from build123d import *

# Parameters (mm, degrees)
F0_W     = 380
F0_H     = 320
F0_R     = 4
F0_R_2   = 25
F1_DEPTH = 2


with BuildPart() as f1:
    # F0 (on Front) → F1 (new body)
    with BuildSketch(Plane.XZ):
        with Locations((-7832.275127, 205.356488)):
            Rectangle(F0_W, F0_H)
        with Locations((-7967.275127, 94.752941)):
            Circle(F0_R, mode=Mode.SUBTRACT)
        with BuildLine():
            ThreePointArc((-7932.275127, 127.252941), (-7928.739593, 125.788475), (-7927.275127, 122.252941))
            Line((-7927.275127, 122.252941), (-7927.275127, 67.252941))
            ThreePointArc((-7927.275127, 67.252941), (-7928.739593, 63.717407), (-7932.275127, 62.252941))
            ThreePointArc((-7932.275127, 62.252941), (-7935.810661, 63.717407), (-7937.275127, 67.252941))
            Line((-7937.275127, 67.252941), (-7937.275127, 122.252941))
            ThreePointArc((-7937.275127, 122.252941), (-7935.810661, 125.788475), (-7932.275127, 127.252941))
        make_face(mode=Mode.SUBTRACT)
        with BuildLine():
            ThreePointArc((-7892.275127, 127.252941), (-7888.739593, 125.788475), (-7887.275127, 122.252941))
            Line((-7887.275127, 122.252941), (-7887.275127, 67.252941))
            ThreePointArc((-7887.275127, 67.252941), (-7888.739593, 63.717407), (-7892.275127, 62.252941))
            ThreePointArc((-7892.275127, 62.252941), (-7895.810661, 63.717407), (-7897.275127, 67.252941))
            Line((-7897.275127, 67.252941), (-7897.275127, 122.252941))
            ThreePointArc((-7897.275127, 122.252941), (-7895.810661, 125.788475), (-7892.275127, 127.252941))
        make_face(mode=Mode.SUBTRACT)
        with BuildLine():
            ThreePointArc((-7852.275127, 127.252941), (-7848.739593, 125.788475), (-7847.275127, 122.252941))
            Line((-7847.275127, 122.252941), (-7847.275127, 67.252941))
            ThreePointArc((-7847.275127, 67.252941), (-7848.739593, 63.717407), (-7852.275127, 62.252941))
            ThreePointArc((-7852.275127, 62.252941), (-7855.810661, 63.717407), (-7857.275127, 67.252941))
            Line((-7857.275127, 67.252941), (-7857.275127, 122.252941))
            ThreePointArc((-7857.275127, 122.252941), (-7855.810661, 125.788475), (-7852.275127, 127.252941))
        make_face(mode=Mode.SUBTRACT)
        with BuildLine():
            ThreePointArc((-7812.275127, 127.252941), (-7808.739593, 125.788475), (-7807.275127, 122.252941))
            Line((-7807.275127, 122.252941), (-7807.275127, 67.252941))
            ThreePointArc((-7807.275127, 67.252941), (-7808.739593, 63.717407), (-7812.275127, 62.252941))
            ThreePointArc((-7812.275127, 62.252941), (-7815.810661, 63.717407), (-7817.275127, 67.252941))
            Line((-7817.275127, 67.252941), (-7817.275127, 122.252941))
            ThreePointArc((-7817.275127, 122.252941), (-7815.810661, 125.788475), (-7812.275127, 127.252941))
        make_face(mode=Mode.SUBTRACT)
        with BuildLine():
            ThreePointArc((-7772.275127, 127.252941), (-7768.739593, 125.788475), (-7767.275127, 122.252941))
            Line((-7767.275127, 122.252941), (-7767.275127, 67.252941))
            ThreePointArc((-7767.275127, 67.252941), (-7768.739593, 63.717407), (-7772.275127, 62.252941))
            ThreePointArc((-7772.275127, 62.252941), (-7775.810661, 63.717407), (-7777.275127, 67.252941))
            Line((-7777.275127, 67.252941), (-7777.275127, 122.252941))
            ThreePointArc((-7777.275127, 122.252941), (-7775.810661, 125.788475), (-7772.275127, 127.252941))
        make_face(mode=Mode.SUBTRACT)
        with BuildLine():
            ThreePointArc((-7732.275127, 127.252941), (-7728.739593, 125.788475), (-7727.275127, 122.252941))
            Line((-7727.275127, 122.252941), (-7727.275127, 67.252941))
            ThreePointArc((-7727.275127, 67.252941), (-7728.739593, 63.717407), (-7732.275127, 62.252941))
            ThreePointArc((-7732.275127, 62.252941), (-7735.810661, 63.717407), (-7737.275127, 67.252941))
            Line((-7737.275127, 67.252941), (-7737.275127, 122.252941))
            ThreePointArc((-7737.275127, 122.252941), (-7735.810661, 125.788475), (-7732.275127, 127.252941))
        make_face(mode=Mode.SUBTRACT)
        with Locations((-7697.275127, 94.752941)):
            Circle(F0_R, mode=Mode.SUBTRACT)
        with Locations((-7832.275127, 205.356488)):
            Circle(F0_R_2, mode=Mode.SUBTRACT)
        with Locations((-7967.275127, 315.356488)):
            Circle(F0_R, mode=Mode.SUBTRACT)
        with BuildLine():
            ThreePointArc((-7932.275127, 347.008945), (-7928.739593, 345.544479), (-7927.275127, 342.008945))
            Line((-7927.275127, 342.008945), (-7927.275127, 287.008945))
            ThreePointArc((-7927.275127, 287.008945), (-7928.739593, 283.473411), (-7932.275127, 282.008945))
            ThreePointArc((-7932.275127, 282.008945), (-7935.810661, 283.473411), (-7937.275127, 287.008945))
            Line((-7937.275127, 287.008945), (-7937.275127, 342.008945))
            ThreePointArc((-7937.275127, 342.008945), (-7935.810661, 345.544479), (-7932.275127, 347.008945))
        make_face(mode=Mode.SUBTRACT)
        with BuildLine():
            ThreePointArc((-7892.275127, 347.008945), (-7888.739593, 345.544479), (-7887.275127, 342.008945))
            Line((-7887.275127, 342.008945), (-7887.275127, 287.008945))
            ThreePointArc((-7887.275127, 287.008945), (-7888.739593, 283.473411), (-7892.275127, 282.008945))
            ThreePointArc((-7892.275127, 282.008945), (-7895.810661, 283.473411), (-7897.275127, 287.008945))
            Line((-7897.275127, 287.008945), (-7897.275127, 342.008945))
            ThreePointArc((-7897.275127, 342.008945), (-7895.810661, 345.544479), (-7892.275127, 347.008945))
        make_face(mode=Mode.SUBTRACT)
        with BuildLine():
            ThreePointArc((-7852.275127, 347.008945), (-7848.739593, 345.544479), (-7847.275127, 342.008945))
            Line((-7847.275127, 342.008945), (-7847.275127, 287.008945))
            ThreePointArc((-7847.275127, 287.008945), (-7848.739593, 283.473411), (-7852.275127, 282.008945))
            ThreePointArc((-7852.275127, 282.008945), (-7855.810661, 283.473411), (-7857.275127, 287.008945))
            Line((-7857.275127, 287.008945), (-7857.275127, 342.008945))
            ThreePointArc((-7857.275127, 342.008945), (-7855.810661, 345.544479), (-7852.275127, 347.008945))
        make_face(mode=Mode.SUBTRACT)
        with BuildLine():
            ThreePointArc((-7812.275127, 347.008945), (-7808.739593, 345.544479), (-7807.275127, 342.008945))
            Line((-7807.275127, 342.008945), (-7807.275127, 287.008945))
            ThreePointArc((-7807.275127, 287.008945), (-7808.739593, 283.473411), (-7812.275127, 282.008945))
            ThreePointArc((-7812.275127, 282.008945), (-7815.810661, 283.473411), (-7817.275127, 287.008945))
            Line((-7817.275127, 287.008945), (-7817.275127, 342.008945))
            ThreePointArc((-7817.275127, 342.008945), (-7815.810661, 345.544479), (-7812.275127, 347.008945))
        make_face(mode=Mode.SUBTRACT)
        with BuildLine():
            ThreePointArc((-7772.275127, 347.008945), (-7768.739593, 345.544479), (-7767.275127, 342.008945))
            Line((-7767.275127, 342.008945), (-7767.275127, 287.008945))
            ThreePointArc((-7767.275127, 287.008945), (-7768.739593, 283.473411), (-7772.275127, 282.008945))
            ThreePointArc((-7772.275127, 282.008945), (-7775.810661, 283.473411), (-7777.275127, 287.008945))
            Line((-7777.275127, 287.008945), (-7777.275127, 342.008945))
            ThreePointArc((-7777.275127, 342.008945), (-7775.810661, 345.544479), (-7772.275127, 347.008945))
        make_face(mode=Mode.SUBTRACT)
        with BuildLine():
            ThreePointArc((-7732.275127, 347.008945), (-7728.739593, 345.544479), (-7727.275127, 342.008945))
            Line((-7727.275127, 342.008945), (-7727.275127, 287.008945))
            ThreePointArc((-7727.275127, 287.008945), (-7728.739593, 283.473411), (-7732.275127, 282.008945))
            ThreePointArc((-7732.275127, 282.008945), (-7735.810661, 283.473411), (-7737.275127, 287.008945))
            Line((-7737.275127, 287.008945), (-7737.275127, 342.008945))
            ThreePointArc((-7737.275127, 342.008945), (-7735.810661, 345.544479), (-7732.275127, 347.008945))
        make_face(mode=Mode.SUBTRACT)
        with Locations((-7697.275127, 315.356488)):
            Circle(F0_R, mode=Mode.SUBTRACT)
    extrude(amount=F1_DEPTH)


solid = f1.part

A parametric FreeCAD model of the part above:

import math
import FreeCAD as App
import Part
import Sketcher
from FreeCAD import Vector

doc = App.newDocument("Part")
params = doc.addObject("Spreadsheet::Sheet", "Params")
for row, (alias, value) in enumerate([
    ("sketch1_diameter", "8 mm"),
    ("sketch1_diameter2", "50 mm"),
    ("sketch1_radius", "5 mm"),
    ("sketch1_width", "380 mm"),
    ("sketch1_height", "320 mm"),
    ("pad1_length", "2 mm"),
], start=1):
    params.set(f"A{row}", alias)
    params.set(f"B{row}", "=" + value)
    params.setAlias(f"B{row}", alias)

body = doc.addObject("PartDesign::Body", "Body")

sketch1 = body.newObject("Sketcher::SketchObject", "Sketch")
sketch1.AttachmentSupport = (doc.getObject("XZ_Plane"), [""])
sketch1.MapMode = "FlatFace"
sketch1.addGeometry(Part.LineSegment(Vector(-8022.3, 365.4, 0), Vector(-8022.3, 45.4, 0)), False)
sketch1.addGeometry(Part.LineSegment(Vector(-8022.3, 45.4, 0), Vector(-7642.3, 45.4, 0)), False)
sketch1.addGeometry(Part.LineSegment(Vector(-7642.3, 45.4, 0), Vector(-7642.3, 365.4, 0)), False)
sketch1.addGeometry(Part.LineSegment(Vector(-7642.3, 365.4, 0), Vector(-8022.3, 365.4, 0)), False)
sketch1.addGeometry(Part.Circle(Vector(-7967.3, 94.8, 0), Vector(0, 0, 1), 4), False)
sketch1.addGeometry(Part.ArcOfCircle(Part.Circle(Vector(-7932.3, 122.3, 0), Vector(0, 0, 1), 5), math.radians(90), math.radians(180)), False)
sketch1.addGeometry(Part.ArcOfCircle(Part.Circle(Vector(-7932.3, 122.3, 0), Vector(0, 0, 1), 5), math.radians(0), math.radians(90)), False)
sketch1.addGeometry(Part.LineSegment(Vector(-7927.3, 122.3, 0), Vector(-7927.3, 67.3, 0)), False)
sketch1.addGeometry(Part.ArcOfCircle(Part.Circle(Vector(-7932.3, 67.3, 0), Vector(0, 0, 1), 5), math.radians(-90), math.radians(0)), False)
sketch1.addGeometry(Part.ArcOfCircle(Part.Circle(Vector(-7932.3, 67.3, 0), Vector(0, 0, 1), 5), math.radians(180), math.radians(270)), False)
sketch1.addGeometry(Part.LineSegment(Vector(-7937.3, 67.3, 0), Vector(-7937.3, 122.3, 0)), False)
sketch1.addGeometry(Part.ArcOfCircle(Part.Circle(Vector(-7892.3, 122.3, 0), Vector(0, 0, 1), 5), math.radians(90), math.radians(180)), False)
sketch1.addGeometry(Part.ArcOfCircle(Part.Circle(Vector(-7892.3, 122.3, 0), Vector(0, 0, 1), 5), math.radians(0), math.radians(90)), False)
sketch1.addGeometry(Part.LineSegment(Vector(-7887.3, 122.3, 0), Vector(-7887.3, 67.3, 0)), False)
sketch1.addGeometry(Part.ArcOfCircle(Part.Circle(Vector(-7892.3, 67.3, 0), Vector(0, 0, 1), 5), math.radians(-90), math.radians(0)), False)
sketch1.addGeometry(Part.ArcOfCircle(Part.Circle(Vector(-7892.3, 67.3, 0), Vector(0, 0, 1), 5), math.radians(180), math.radians(270)), False)
sketch1.addGeometry(Part.LineSegment(Vector(-7897.3, 67.3, 0), Vector(-7897.3, 122.3, 0)), False)
sketch1.addGeometry(Part.ArcOfCircle(Part.Circle(Vector(-7852.3, 122.3, 0), Vector(0, 0, 1), 5), math.radians(90), math.radians(180)), False)
sketch1.addGeometry(Part.ArcOfCircle(Part.Circle(Vector(-7852.3, 122.3, 0), Vector(0, 0, 1), 5), math.radians(0), math.radians(90)), False)
sketch1.addGeometry(Part.LineSegment(Vector(-7847.3, 122.3, 0), Vector(-7847.3, 67.3, 0)), False)
sketch1.addGeometry(Part.ArcOfCircle(Part.Circle(Vector(-7852.3, 67.3, 0), Vector(0, 0, 1), 5), math.radians(-90), math.radians(0)), False)
sketch1.addGeometry(Part.ArcOfCircle(Part.Circle(Vector(-7852.3, 67.3, 0), Vector(0, 0, 1), 5), math.radians(180), math.radians(270)), False)
sketch1.addGeometry(Part.LineSegment(Vector(-7857.3, 67.3, 0), Vector(-7857.3, 122.3, 0)), False)
sketch1.addGeometry(Part.ArcOfCircle(Part.Circle(Vector(-7812.3, 122.3, 0), Vector(0, 0, 1), 5), math.radians(90), math.radians(180)), False)
sketch1.addGeometry(Part.ArcOfCircle(Part.Circle(Vector(-7812.3, 122.3, 0), Vector(0, 0, 1), 5), math.radians(0), math.radians(90)), False)
sketch1.addGeometry(Part.LineSegment(Vector(-7807.3, 122.3, 0), Vector(-7807.3, 67.3, 0)), False)
sketch1.addGeometry(Part.ArcOfCircle(Part.Circle(Vector(-7812.3, 67.3, 0), Vector(0, 0, 1), 5), math.radians(-90), math.radians(0)), False)
sketch1.addGeometry(Part.ArcOfCircle(Part.Circle(Vector(-7812.3, 67.3, 0), Vector(0, 0, 1), 5), math.radians(180), math.radians(270)), False)
sketch1.addGeometry(Part.LineSegment(Vector(-7817.3, 67.3, 0), Vector(-7817.3, 122.3, 0)), False)
sketch1.addGeometry(Part.ArcOfCircle(Part.Circle(Vector(-7772.3, 122.3, 0), Vector(0, 0, 1), 5), math.radians(90), math.radians(180)), False)
sketch1.addGeometry(Part.ArcOfCircle(Part.Circle(Vector(-7772.3, 122.3, 0), Vector(0, 0, 1), 5), math.radians(0), math.radians(90)), False)
sketch1.addGeometry(Part.LineSegment(Vector(-7767.3, 122.3, 0), Vector(-7767.3, 67.3, 0)), False)
sketch1.addGeometry(Part.ArcOfCircle(Part.Circle(Vector(-7772.3, 67.3, 0), Vector(0, 0, 1), 5), math.radians(-90), math.radians(0)), False)
sketch1.addGeometry(Part.ArcOfCircle(Part.Circle(Vector(-7772.3, 67.3, 0), Vector(0, 0, 1), 5), math.radians(180), math.radians(270)), False)
sketch1.addGeometry(Part.LineSegment(Vector(-7777.3, 67.3, 0), Vector(-7777.3, 122.3, 0)), False)
sketch1.addGeometry(Part.ArcOfCircle(Part.Circle(Vector(-7732.3, 122.3, 0), Vector(0, 0, 1), 5), math.radians(90), math.radians(180)), False)
sketch1.addGeometry(Part.ArcOfCircle(Part.Circle(Vector(-7732.3, 122.3, 0), Vector(0, 0, 1), 5), math.radians(0), math.radians(90)), False)
sketch1.addGeometry(Part.LineSegment(Vector(-7727.3, 122.3, 0), Vector(-7727.3, 67.3, 0)), False)
sketch1.addGeometry(Part.ArcOfCircle(Part.Circle(Vector(-7732.3, 67.3, 0), Vector(0, 0, 1), 5), math.radians(-90), math.radians(0)), False)
sketch1.addGeometry(Part.ArcOfCircle(Part.Circle(Vector(-7732.3, 67.3, 0), Vector(0, 0, 1), 5), math.radians(180), math.radians(270)), False)
sketch1.addGeometry(Part.LineSegment(Vector(-7737.3, 67.3, 0), Vector(-7737.3, 122.3, 0)), False)
sketch1.addGeometry(Part.Circle(Vector(-7697.3, 94.8, 0), Vector(0, 0, 1), 4), False)
sketch1.addGeometry(Part.Circle(Vector(-7967.3, 315.4, 0), Vector(0, 0, 1), 4), False)
sketch1.addGeometry(Part.ArcOfCircle(Part.Circle(Vector(-7932.3, 342, 0), Vector(0, 0, 1), 5), math.radians(90), math.radians(180)), False)
sketch1.addGeometry(Part.ArcOfCircle(Part.Circle(Vector(-7932.3, 342, 0), Vector(0, 0, 1), 5), math.radians(0), math.radians(90)), False)
sketch1.addGeometry(Part.LineSegment(Vector(-7927.3, 342, 0), Vector(-7927.3, 287, 0)), False)
sketch1.addGeometry(Part.ArcOfCircle(Part.Circle(Vector(-7932.3, 287, 0), Vector(0, 0, 1), 5), math.radians(-90), math.radians(0)), False)
sketch1.addGeometry(Part.ArcOfCircle(Part.Circle(Vector(-7932.3, 287, 0), Vector(0, 0, 1), 5), math.radians(180), math.radians(270)), False)
sketch1.addGeometry(Part.LineSegment(Vector(-7937.3, 287, 0), Vector(-7937.3, 342, 0)), False)
sketch1.addGeometry(Part.ArcOfCircle(Part.Circle(Vector(-7892.3, 342, 0), Vector(0, 0, 1), 5), math.radians(90), math.radians(180)), False)
sketch1.addGeometry(Part.ArcOfCircle(Part.Circle(Vector(-7892.3, 342, 0), Vector(0, 0, 1), 5), math.radians(0), math.radians(90)), False)
sketch1.addGeometry(Part.LineSegment(Vector(-7887.3, 342, 0), Vector(-7887.3, 287, 0)), False)
sketch1.addGeometry(Part.ArcOfCircle(Part.Circle(Vector(-7892.3, 287, 0), Vector(0, 0, 1), 5), math.radians(-90), math.radians(0)), False)
sketch1.addGeometry(Part.ArcOfCircle(Part.Circle(Vector(-7892.3, 287, 0), Vector(0, 0, 1), 5), math.radians(180), math.radians(270)), False)
sketch1.addGeometry(Part.LineSegment(Vector(-7897.3, 287, 0), Vector(-7897.3, 342, 0)), False)
sketch1.addGeometry(Part.ArcOfCircle(Part.Circle(Vector(-7852.3, 342, 0), Vector(0, 0, 1), 5), math.radians(90), math.radians(180)), False)
sketch1.addGeometry(Part.ArcOfCircle(Part.Circle(Vector(-7852.3, 342, 0), Vector(0, 0, 1), 5), math.radians(0), math.radians(90)), False)
sketch1.addGeometry(Part.LineSegment(Vector(-7847.3, 342, 0), Vector(-7847.3, 287, 0)), False)
sketch1.addGeometry(Part.ArcOfCircle(Part.Circle(Vector(-7852.3, 287, 0), Vector(0, 0, 1), 5), math.radians(-90), math.radians(0)), False)
sketch1.addGeometry(Part.ArcOfCircle(Part.Circle(Vector(-7852.3, 287, 0), Vector(0, 0, 1), 5), math.radians(180), math.radians(270)), False)
sketch1.addGeometry(Part.LineSegment(Vector(-7857.3, 287, 0), Vector(-7857.3, 342, 0)), False)
sketch1.addGeometry(Part.Circle(Vector(-7832.3, 205.4, 0), Vector(0, 0, 1), 25), False)
sketch1.addGeometry(Part.ArcOfCircle(Part.Circle(Vector(-7812.3, 342, 0), Vector(0, 0, 1), 5), math.radians(90), math.radians(180)), False)
sketch1.addGeometry(Part.ArcOfCircle(Part.Circle(Vector(-7812.3, 342, 0), Vector(0, 0, 1), 5), math.radians(0), math.radians(90)), False)
sketch1.addGeometry(Part.LineSegment(Vector(-7807.3, 342, 0), Vector(-7807.3, 287, 0)), False)
sketch1.addGeometry(Part.ArcOfCircle(Part.Circle(Vector(-7812.3, 287, 0), Vector(0, 0, 1), 5), math.radians(-90), math.radians(0)), False)
sketch1.addGeometry(Part.ArcOfCircle(Part.Circle(Vector(-7812.3, 287, 0), Vector(0, 0, 1), 5), math.radians(180), math.radians(270)), False)
sketch1.addGeometry(Part.LineSegment(Vector(-7817.3, 287, 0), Vector(-7817.3, 342, 0)), False)
sketch1.addGeometry(Part.ArcOfCircle(Part.Circle(Vector(-7772.3, 342, 0), Vector(0, 0, 1), 5), math.radians(90), math.radians(180)), False)
sketch1.addGeometry(Part.ArcOfCircle(Part.Circle(Vector(-7772.3, 342, 0), Vector(0, 0, 1), 5), math.radians(0), math.radians(90)), False)
sketch1.addGeometry(Part.LineSegment(Vector(-7767.3, 342, 0), Vector(-7767.3, 287, 0)), False)
sketch1.addGeometry(Part.ArcOfCircle(Part.Circle(Vector(-7772.3, 287, 0), Vector(0, 0, 1), 5), math.radians(-90), math.radians(0)), False)
sketch1.addGeometry(Part.ArcOfCircle(Part.Circle(Vector(-7772.3, 287, 0), Vector(0, 0, 1), 5), math.radians(180), math.radians(270)), False)
sketch1.addGeometry(Part.LineSegment(Vector(-7777.3, 287, 0), Vector(-7777.3, 342, 0)), False)
sketch1.addGeometry(Part.ArcOfCircle(Part.Circle(Vector(-7732.3, 342, 0), Vector(0, 0, 1), 5), math.radians(90), math.radians(180)), False)
sketch1.addGeometry(Part.ArcOfCircle(Part.Circle(Vector(-7732.3, 342, 0), Vector(0, 0, 1), 5), math.radians(0), math.radians(90)), False)
sketch1.addGeometry(Part.LineSegment(Vector(-7727.3, 342, 0), Vector(-7727.3, 287, 0)), False)
sketch1.addGeometry(Part.ArcOfCircle(Part.Circle(Vector(-7732.3, 287, 0), Vector(0, 0, 1), 5), math.radians(-90), math.radians(0)), False)
sketch1.addGeometry(Part.ArcOfCircle(Part.Circle(Vector(-7732.3, 287, 0), Vector(0, 0, 1), 5), math.radians(180), math.radians(270)), False)
sketch1.addGeometry(Part.LineSegment(Vector(-7737.3, 287, 0), Vector(-7737.3, 342, 0)), False)
sketch1.addGeometry(Part.Circle(Vector(-7697.3, 315.4, 0), Vector(0, 0, 1), 4), False)
sketch1.addConstraint(Sketcher.Constraint("Coincident", 0, 2, 1, 1))
sketch1.addConstraint(Sketcher.Constraint("Coincident", 1, 2, 2, 1))
sketch1.addConstraint(Sketcher.Constraint("Coincident", 2, 2, 3, 1))
sketch1.addConstraint(Sketcher.Constraint("Coincident", 3, 2, 0, 1))
sketch1.addConstraint(Sketcher.Constraint("Tangent", 5, 1, 6, 2))
sketch1.addConstraint(Sketcher.Constraint("Tangent", 6, 1, 7, 1))
sketch1.addConstraint(Sketcher.Constraint("Tangent", 7, 2, 8, 2))
sketch1.addConstraint(Sketcher.Constraint("Tangent", 8, 1, 9, 2))
sketch1.addConstraint(Sketcher.Constraint("Tangent", 9, 1, 10, 1))
sketch1.addConstraint(Sketcher.Constraint("Tangent", 10, 2, 5, 2))
sketch1.addConstraint(Sketcher.Constraint("Tangent", 11, 1, 12, 2))
sketch1.addConstraint(Sketcher.Constraint("Tangent", 12, 1, 13, 1))
sketch1.addConstraint(Sketcher.Constraint("Tangent", 13, 2, 14, 2))
sketch1.addConstraint(Sketcher.Constraint("Tangent", 14, 1, 15, 2))
sketch1.addConstraint(Sketcher.Constraint("Tangent", 15, 1, 16, 1))
sketch1.addConstraint(Sketcher.Constraint("Tangent", 16, 2, 11, 2))
sketch1.addConstraint(Sketcher.Constraint("Tangent", 17, 1, 18, 2))
sketch1.addConstraint(Sketcher.Constraint("Tangent", 18, 1, 19, 1))
sketch1.addConstraint(Sketcher.Constraint("Tangent", 19, 2, 20, 2))
sketch1.addConstraint(Sketcher.Constraint("Tangent", 20, 1, 21, 2))
sketch1.addConstraint(Sketcher.Constraint("Tangent", 21, 1, 22, 1))
sketch1.addConstraint(Sketcher.Constraint("Tangent", 22, 2, 17, 2))
sketch1.addConstraint(Sketcher.Constraint("Tangent", 23, 1, 24, 2))
sketch1.addConstraint(Sketcher.Constraint("Tangent", 24, 1, 25, 1))
sketch1.addConstraint(Sketcher.Constraint("Tangent", 25, 2, 26, 2))
sketch1.addConstraint(Sketcher.Constraint("Tangent", 26, 1, 27, 2))
sketch1.addConstraint(Sketcher.Constraint("Tangent", 27, 1, 28, 1))
sketch1.addConstraint(Sketcher.Constraint("Tangent", 28, 2, 23, 2))
sketch1.addConstraint(Sketcher.Constraint("Tangent", 29, 1, 30, 2))
sketch1.addConstraint(Sketcher.Constraint("Tangent", 30, 1, 31, 1))
sketch1.addConstraint(Sketcher.Constraint("Tangent", 31, 2, 32, 2))
sketch1.addConstraint(Sketcher.Constraint("Tangent", 32, 1, 33, 2))
sketch1.addConstraint(Sketcher.Constraint("Tangent", 33, 1, 34, 1))
sketch1.addConstraint(Sketcher.Constraint("Tangent", 34, 2, 29, 2))
sketch1.addConstraint(Sketcher.Constraint("Tangent", 35, 1, 36, 2))
sketch1.addConstraint(Sketcher.Constraint("Tangent", 36, 1, 37, 1))
sketch1.addConstraint(Sketcher.Constraint("Tangent", 37, 2, 38, 2))
sketch1.addConstraint(Sketcher.Constraint("Tangent", 38, 1, 39, 2))
sketch1.addConstraint(Sketcher.Constraint("Tangent", 39, 1, 40, 1))
sketch1.addConstraint(Sketcher.Constraint("Tangent", 40, 2, 35, 2))
sketch1.addConstraint(Sketcher.Constraint("Tangent", 43, 1, 44, 2))
sketch1.addConstraint(Sketcher.Constraint("Tangent", 44, 1, 45, 1))
sketch1.addConstraint(Sketcher.Constraint("Tangent", 45, 2, 46, 2))
sketch1.addConstraint(Sketcher.Constraint("Tangent", 46, 1, 47, 2))
sketch1.addConstraint(Sketcher.Constraint("Tangent", 47, 1, 48, 1))
sketch1.addConstraint(Sketcher.Constraint("Tangent", 48, 2, 43, 2))
sketch1.addConstraint(Sketcher.Constraint("Tangent", 49, 1, 50, 2))
sketch1.addConstraint(Sketcher.Constraint("Tangent", 50, 1, 51, 1))
sketch1.addConstraint(Sketcher.Constraint("Tangent", 51, 2, 52, 2))
sketch1.addConstraint(Sketcher.Constraint("Tangent", 52, 1, 53, 2))
sketch1.addConstraint(Sketcher.Constraint("Tangent", 53, 1, 54, 1))
sketch1.addConstraint(Sketcher.Constraint("Tangent", 54, 2, 49, 2))
sketch1.addConstraint(Sketcher.Constraint("Tangent", 55, 1, 56, 2))
sketch1.addConstraint(Sketcher.Constraint("Tangent", 56, 1, 57, 1))
sketch1.addConstraint(Sketcher.Constraint("Tangent", 57, 2, 58, 2))
sketch1.addConstraint(Sketcher.Constraint("Tangent", 58, 1, 59, 2))
sketch1.addConstraint(Sketcher.Constraint("Tangent", 59, 1, 60, 1))
sketch1.addConstraint(Sketcher.Constraint("Tangent", 60, 2, 55, 2))
sketch1.addConstraint(Sketcher.Constraint("Tangent", 62, 1, 63, 2))
sketch1.addConstraint(Sketcher.Constraint("Tangent", 63, 1, 64, 1))
sketch1.addConstraint(Sketcher.Constraint("Tangent", 64, 2, 65, 2))
sketch1.addConstraint(Sketcher.Constraint("Tangent", 65, 1, 66, 2))
sketch1.addConstraint(Sketcher.Constraint("Tangent", 66, 1, 67, 1))
sketch1.addConstraint(Sketcher.Constraint("Tangent", 67, 2, 62, 2))
sketch1.addConstraint(Sketcher.Constraint("Tangent", 68, 1, 69, 2))
sketch1.addConstraint(Sketcher.Constraint("Tangent", 69, 1, 70, 1))
sketch1.addConstraint(Sketcher.Constraint("Tangent", 70, 2, 71, 2))
sketch1.addConstraint(Sketcher.Constraint("Tangent", 71, 1, 72, 2))
sketch1.addConstraint(Sketcher.Constraint("Tangent", 72, 1, 73, 1))
sketch1.addConstraint(Sketcher.Constraint("Tangent", 73, 2, 68, 2))
sketch1.addConstraint(Sketcher.Constraint("Tangent", 74, 1, 75, 2))
sketch1.addConstraint(Sketcher.Constraint("Tangent", 75, 1, 76, 1))
sketch1.addConstraint(Sketcher.Constraint("Tangent", 76, 2, 77, 2))
sketch1.addConstraint(Sketcher.Constraint("Tangent", 77, 1, 78, 2))
sketch1.addConstraint(Sketcher.Constraint("Tangent", 78, 1, 79, 1))
sketch1.addConstraint(Sketcher.Constraint("Tangent", 79, 2, 74, 2))
sketch1.addConstraint(Sketcher.Constraint("Vertical", 0))
sketch1.addConstraint(Sketcher.Constraint("Horizontal", 1))
sketch1.addConstraint(Sketcher.Constraint("Vertical", 2))
sketch1.addConstraint(Sketcher.Constraint("Horizontal", 3))
sketch1.addConstraint(Sketcher.Constraint("Vertical", 7))
sketch1.addConstraint(Sketcher.Constraint("Vertical", 10))
sketch1.addConstraint(Sketcher.Constraint("Vertical", 13))
sketch1.addConstraint(Sketcher.Constraint("Vertical", 16))
sketch1.addConstraint(Sketcher.Constraint("Vertical", 19))
sketch1.addConstraint(Sketcher.Constraint("Vertical", 22))
sketch1.addConstraint(Sketcher.Constraint("Vertical", 25))
sketch1.addConstraint(Sketcher.Constraint("Vertical", 28))
sketch1.addConstraint(Sketcher.Constraint("Vertical", 31))
sketch1.addConstraint(Sketcher.Constraint("Vertical", 34))
sketch1.addConstraint(Sketcher.Constraint("Vertical", 37))
sketch1.addConstraint(Sketcher.Constraint("Vertical", 40))
sketch1.addConstraint(Sketcher.Constraint("Vertical", 45))
sketch1.addConstraint(Sketcher.Constraint("Vertical", 48))
sketch1.addConstraint(Sketcher.Constraint("Vertical", 51))
sketch1.addConstraint(Sketcher.Constraint("Vertical", 54))
sketch1.addConstraint(Sketcher.Constraint("Vertical", 57))
sketch1.addConstraint(Sketcher.Constraint("Vertical", 60))
sketch1.addConstraint(Sketcher.Constraint("Vertical", 64))
sketch1.addConstraint(Sketcher.Constraint("Vertical", 67))
sketch1.addConstraint(Sketcher.Constraint("Vertical", 70))
sketch1.addConstraint(Sketcher.Constraint("Vertical", 73))
sketch1.addConstraint(Sketcher.Constraint("Vertical", 76))
sketch1.addConstraint(Sketcher.Constraint("Vertical", 79))
sketch1.addConstraint(Sketcher.Constraint("Equal", 5, 6))
sketch1.addConstraint(Sketcher.Constraint("Equal", 6, 8))
sketch1.addConstraint(Sketcher.Constraint("Equal", 9, 11))
sketch1.addConstraint(Sketcher.Constraint("Equal", 11, 12))
sketch1.addConstraint(Sketcher.Constraint("Equal", 12, 14))
sketch1.addConstraint(Sketcher.Constraint("Equal", 15, 17))
sketch1.addConstraint(Sketcher.Constraint("Equal", 17, 18))
sketch1.addConstraint(Sketcher.Constraint("Equal", 18, 20))
sketch1.addConstraint(Sketcher.Constraint("Equal", 21, 23))
sketch1.addConstraint(Sketcher.Constraint("Equal", 23, 24))
sketch1.addConstraint(Sketcher.Constraint("Equal", 24, 26))
sketch1.addConstraint(Sketcher.Constraint("Equal", 27, 29))
sketch1.addConstraint(Sketcher.Constraint("Equal", 29, 30))
sketch1.addConstraint(Sketcher.Constraint("Equal", 30, 32))
sketch1.addConstraint(Sketcher.Constraint("Equal", 33, 35))
sketch1.addConstraint(Sketcher.Constraint("Equal", 35, 36))
sketch1.addConstraint(Sketcher.Constraint("Equal", 36, 38))
sketch1.addConstraint(Sketcher.Constraint("Equal", 4, 41))
sketch1.addConstraint(Sketcher.Constraint("Equal", 41, 42))
sketch1.addConstraint(Sketcher.Constraint("Equal", 39, 43))
sketch1.addConstraint(Sketcher.Constraint("Equal", 43, 44))
sketch1.addConstraint(Sketcher.Constraint("Equal", 44, 46))
sketch1.addConstraint(Sketcher.Constraint("Equal", 47, 49))
sketch1.addConstraint(Sketcher.Constraint("Equal", 49, 50))
sketch1.addConstraint(Sketcher.Constraint("Equal", 50, 52))
sketch1.addConstraint(Sketcher.Constraint("Equal", 53, 55))
sketch1.addConstraint(Sketcher.Constraint("Equal", 55, 56))
sketch1.addConstraint(Sketcher.Constraint("Equal", 56, 58))
sketch1.addConstraint(Sketcher.Constraint("Equal", 59, 62))
sketch1.addConstraint(Sketcher.Constraint("Equal", 62, 63))
sketch1.addConstraint(Sketcher.Constraint("Equal", 63, 65))
sketch1.addConstraint(Sketcher.Constraint("Equal", 66, 68))
sketch1.addConstraint(Sketcher.Constraint("Equal", 68, 69))
sketch1.addConstraint(Sketcher.Constraint("Equal", 69, 71))
sketch1.addConstraint(Sketcher.Constraint("Equal", 72, 74))
sketch1.addConstraint(Sketcher.Constraint("Equal", 74, 75))
sketch1.addConstraint(Sketcher.Constraint("Equal", 75, 77))
sketch1.addConstraint(Sketcher.Constraint("Equal", 42, 80))
sketch1.addConstraint(Sketcher.Constraint("Horizontal", 6, 3, 11, 3))
sketch1.addConstraint(Sketcher.Constraint("Horizontal", 9, 3, 14, 3))
sketch1.addConstraint(Sketcher.Constraint("Horizontal", 12, 3, 17, 3))
sketch1.addConstraint(Sketcher.Constraint("Horizontal", 15, 3, 20, 3))
sketch1.addConstraint(Sketcher.Constraint("Horizontal", 18, 3, 23, 3))
sketch1.addConstraint(Sketcher.Constraint("Horizontal", 21, 3, 26, 3))
sketch1.addConstraint(Sketcher.Constraint("Horizontal", 24, 3, 29, 3))
sketch1.addConstraint(Sketcher.Constraint("Horizontal", 27, 3, 32, 3))
sketch1.addConstraint(Sketcher.Constraint("Horizontal", 30, 3, 35, 3))
sketch1.addConstraint(Sketcher.Constraint("Horizontal", 33, 3, 38, 3))
sketch1.addConstraint(Sketcher.Constraint("Horizontal", 4, 3, 41, 3))
sketch1.addConstraint(Sketcher.Constraint("Horizontal", 44, 3, 49, 3))
sketch1.addConstraint(Sketcher.Constraint("Horizontal", 47, 3, 52, 3))
sketch1.addConstraint(Sketcher.Constraint("Horizontal", 50, 3, 55, 3))
sketch1.addConstraint(Sketcher.Constraint("Horizontal", 53, 3, 58, 3))
sketch1.addConstraint(Sketcher.Constraint("Horizontal", 56, 3, 62, 3))
sketch1.addConstraint(Sketcher.Constraint("Horizontal", 59, 3, 65, 3))
sketch1.addConstraint(Sketcher.Constraint("Horizontal", 63, 3, 68, 3))
sketch1.addConstraint(Sketcher.Constraint("Horizontal", 66, 3, 71, 3))
sketch1.addConstraint(Sketcher.Constraint("Horizontal", 69, 3, 74, 3))
sketch1.addConstraint(Sketcher.Constraint("Horizontal", 72, 3, 77, 3))
sketch1.addConstraint(Sketcher.Constraint("Horizontal", 42, 3, 80, 3))
sketch1.addConstraint(Sketcher.Constraint("Vertical", 4, 3, 42, 3))
sketch1.addConstraint(Sketcher.Constraint("Vertical", 9, 3, 43, 3))
sketch1.addConstraint(Sketcher.Constraint("Vertical", 15, 3, 49, 3))
sketch1.addConstraint(Sketcher.Constraint("Vertical", 21, 3, 55, 3))
sketch1.addConstraint(Sketcher.Constraint("Vertical", 27, 3, 62, 3))
sketch1.addConstraint(Sketcher.Constraint("Vertical", 33, 3, 68, 3))
sketch1.addConstraint(Sketcher.Constraint("Vertical", 39, 3, 74, 3))
sketch1.addConstraint(Sketcher.Constraint("Vertical", 41, 3, 80, 3))
sketch1.addConstraint(Sketcher.Constraint("Vertical", 47, 3, 5, 1))
sketch1.addConstraint(Sketcher.Constraint("Vertical", 5, 1, 8, 1))
sketch1.addConstraint(Sketcher.Constraint("Vertical", 53, 3, 11, 1))
sketch1.addConstraint(Sketcher.Constraint("Vertical", 11, 1, 14, 1))
sketch1.addConstraint(Sketcher.Constraint("Vertical", 59, 3, 17, 1))
sketch1.addConstraint(Sketcher.Constraint("Vertical", 17, 1, 20, 1))
sketch1.addConstraint(Sketcher.Constraint("Vertical", 66, 3, 23, 1))
sketch1.addConstraint(Sketcher.Constraint("Vertical", 23, 1, 26, 1))
sketch1.addConstraint(Sketcher.Constraint("Vertical", 72, 3, 29, 1))
sketch1.addConstraint(Sketcher.Constraint("Vertical", 29, 1, 32, 1))
sketch1.addConstraint(Sketcher.Constraint("Vertical", 78, 3, 35, 1))
sketch1.addConstraint(Sketcher.Constraint("Vertical", 35, 1, 38, 1))
sketch1.addConstraint(Sketcher.Constraint("Vertical", 8, 1, 43, 1))
sketch1.addConstraint(Sketcher.Constraint("Vertical", 43, 1, 46, 1))
sketch1.addConstraint(Sketcher.Constraint("Vertical", 14, 1, 49, 1))
sketch1.addConstraint(Sketcher.Constraint("Vertical", 49, 1, 52, 1))
sketch1.addConstraint(Sketcher.Constraint("Vertical", 20, 1, 55, 1))
sketch1.addConstraint(Sketcher.Constraint("Vertical", 55, 1, 58, 1))
sketch1.addConstraint(Sketcher.Constraint("Vertical", 26, 1, 62, 1))
sketch1.addConstraint(Sketcher.Constraint("Vertical", 62, 1, 65, 1))
sketch1.addConstraint(Sketcher.Constraint("Vertical", 32, 1, 68, 1))
sketch1.addConstraint(Sketcher.Constraint("Vertical", 68, 1, 71, 1))
sketch1.addConstraint(Sketcher.Constraint("Vertical", 38, 1, 74, 1))
sketch1.addConstraint(Sketcher.Constraint("Vertical", 74, 1, 77, 1))
sketch1.addConstraint(Sketcher.Constraint("Equal", 40, 45))
sketch1.addConstraint(Sketcher.Constraint("Diameter", 4, 8.0))
sketch1.addConstraint(Sketcher.Constraint("Diameter", 61, 50.0))
sketch1.addConstraint(Sketcher.Constraint("Radius", 5, 5.0))
sketch1.addConstraint(Sketcher.Constraint("DistanceX", 1, 1, 1, 2, 380.0))
sketch1.addConstraint(Sketcher.Constraint("DistanceY", 0, 2, 0, 1, 320.0))
sketch1.addConstraint(Sketcher.Constraint("DistanceY", 7, 2, 7, 1, 55.0))
sketch1.addConstraint(Sketcher.Constraint("DistanceY", -1, 1, 4, 3, 94.752941))
sketch1.addConstraint(Sketcher.Constraint("DistanceY", -1, 1, 5, 3, 122.252941))
sketch1.addConstraint(Sketcher.Constraint("DistanceY", -1, 1, 42, 3, 315.356488))
sketch1.addConstraint(Sketcher.Constraint("DistanceY", -1, 1, 61, 3, 205.356488))
sketch1.addConstraint(Sketcher.Constraint("DistanceY", -1, 1, 2, 2, 365.356488))
sketch1.addConstraint(Sketcher.Constraint("DistanceX", 4, 3, -1, 1, 7967.275127))
sketch1.addConstraint(Sketcher.Constraint("DistanceX", 5, 3, -1, 1, 7932.275127))
sketch1.addConstraint(Sketcher.Constraint("DistanceX", 11, 3, -1, 1, 7892.275127))
sketch1.addConstraint(Sketcher.Constraint("DistanceX", 17, 3, -1, 1, 7852.275127))
sketch1.addConstraint(Sketcher.Constraint("DistanceX", 23, 3, -1, 1, 7812.275127))
sketch1.addConstraint(Sketcher.Constraint("DistanceX", 29, 3, -1, 1, 7772.275127))
sketch1.addConstraint(Sketcher.Constraint("DistanceX", 35, 3, -1, 1, 7732.275127))
sketch1.addConstraint(Sketcher.Constraint("DistanceX", 41, 3, -1, 1, 7697.275127))
sketch1.addConstraint(Sketcher.Constraint("DistanceY", -1, 1, 43, 3, 342.008945))
sketch1.addConstraint(Sketcher.Constraint("DistanceX", 61, 3, -1, 1, 7832.275127))
sketch1.addConstraint(Sketcher.Constraint("DistanceX", 0, 2, -1, 1, 8022.275127))
sketch1.setExpression("Constraints[197]", "Params.sketch1_diameter")
sketch1.setExpression("Constraints[198]", "Params.sketch1_diameter2")
sketch1.setExpression("Constraints[199]", "Params.sketch1_radius")
sketch1.setExpression("Constraints[200]", "Params.sketch1_width")
sketch1.setExpression("Constraints[201]", "Params.sketch1_height")
pad1 = body.newObject("PartDesign::Pad", "Pad")
pad1.Profile = sketch1
pad1.setExpression("Length", "Params.pad1_length")

doc.recompute()
